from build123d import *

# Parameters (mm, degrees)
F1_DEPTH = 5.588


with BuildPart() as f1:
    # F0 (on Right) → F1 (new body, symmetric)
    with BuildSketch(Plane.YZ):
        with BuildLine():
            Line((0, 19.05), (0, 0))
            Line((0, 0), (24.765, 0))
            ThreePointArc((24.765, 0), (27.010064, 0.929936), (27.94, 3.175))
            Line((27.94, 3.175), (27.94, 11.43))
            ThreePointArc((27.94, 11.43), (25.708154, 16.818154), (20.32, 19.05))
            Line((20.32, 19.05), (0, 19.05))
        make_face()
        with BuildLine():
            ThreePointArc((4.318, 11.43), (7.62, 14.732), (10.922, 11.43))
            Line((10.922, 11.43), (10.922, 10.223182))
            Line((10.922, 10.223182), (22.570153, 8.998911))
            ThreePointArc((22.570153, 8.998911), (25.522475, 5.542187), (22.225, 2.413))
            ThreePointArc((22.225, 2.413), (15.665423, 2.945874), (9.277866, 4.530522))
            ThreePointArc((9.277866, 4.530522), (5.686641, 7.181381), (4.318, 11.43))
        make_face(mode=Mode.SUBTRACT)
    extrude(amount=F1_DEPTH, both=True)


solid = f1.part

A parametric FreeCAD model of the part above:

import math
import FreeCAD as App
import Part
import Sketcher

V = App.Vector
Q = App.Units.Quantity

doc = App.newDocument("Part")
body = doc.addObject("PartDesign::Body", "Body")

sketch1 = body.newObject("Sketcher::SketchObject", "Sketch")
sketch1.AttachmentSupport = (doc.getObject("YZ_Plane"), [""])
sketch1.MapMode = "FlatFace"
sketch1.addGeometry([
    Part.LineSegment(V(0, 19.1, 0), V(0, 0, 0)),
    Part.LineSegment(V(0, 0, 0), V(24.8, 0, 0)),
    Part.ArcOfCircle(Part.Circle(V(24.8, 3.2, 0), V(0, 0, 1), 3.2), math.radians(-90), math.radians(0)),
    Part.LineSegment(V(27.9, 3.2, 0), V(27.9, 11.4, 0)),
    Part.ArcOfCircle(Part.Circle(V(20.3, 11.4, 0), V(0, 0, 1), 7.6), math.radians(0), math.radians(90)),
    Part.LineSegment(V(20.3, 19.1, 0), V(0, 19.1, 0)),
    Part.ArcOfCircle(Part.Circle(V(11.6, 11.4, 0), V(0, 0, 1), 7.3), math.radians(180), math.radians(251)),
    Part.ArcOfCircle(Part.Circle(V(7.6, 11.4, 0), V(0, 0, 1), 3.3), math.radians(0), math.radians(180)),
    Part.LineSegment(V(10.9, 11.4, 0), V(10.9, 10.2, 0)),
    Part.LineSegment(V(10.9, 10.2, 0), V(22.6, 9, 0)),
    Part.ArcOfCircle(Part.Circle(V(22.2, 5.7, 0), V(0, 0, 1), 3.3), math.radians(-90), math.radians(84)),
    Part.ArcOfCircle(Part.Circle(V(22.2, 43.1, 0), V(0, 0, 1), 40.6), math.radians(-108.58), math.radians(-90)),
], False)
sketch1.addConstraint([
    Sketcher.Constraint("Coincident", 0, 2, 1, 1),
    Sketcher.Constraint("Tangent", 1, 2, 2, 1),
    Sketcher.Constraint("Tangent", 2, 2, 3, 1),
    Sketcher.Constraint("Tangent", 3, 2, 4, 1),
    Sketcher.Constraint("Tangent", 4, 2, 5, 1),
    Sketcher.Constraint("Coincident", 5, 2, 0, 1),
    Sketcher.Constraint("Tangent", 6, 1, 7, 2),
    Sketcher.Constraint("Tangent", 7, 1, 8, 1),
    Sketcher.Constraint("Coincident", 8, 2, 9, 1),
    Sketcher.Constraint("Tangent", 9, 2, 10, 2),
    Sketcher.Constraint("Tangent", 10, 1, 11, 2),
    Sketcher.Constraint("Tangent", 11, 1, 6, 2),
    Sketcher.Constraint("Vertical", 0),
    Sketcher.Constraint("Horizontal", 1),
    Sketcher.Constraint("Vertical", 3),
    Sketcher.Constraint("Horizontal", 5),
    Sketcher.Constraint("Vertical", 8),
    Sketcher.Constraint("Coincident", 0, 2, -1, 1),
    Sketcher.Constraint("Equal", 7, 10),
    Sketcher.Constraint("Horizontal", 4, 3, 6, 3),
    Sketcher.Constraint("Horizontal", 6, 3, 7, 3),
    Sketcher.Constraint("Vertical", 10, 3, 11, 3),
    Sketcher.Constraint("Radius", 4, Q("0.3 in")),
    Sketcher.Constraint("Radius", 7, Q("0.13 in")),
    Sketcher.Constraint("DistanceX", 5, 2, 5, 1, Q("0.8 in")),
    Sketcher.Constraint("Angle", 9, Q("-6.000004 deg")),
    Sketcher.Constraint("Radius", 2, Q("0.125 in")),
    Sketcher.Constraint("DistanceY", 0, 2, 0, 1, Q("0.75 in")),
    Sketcher.Constraint("DistanceX", -1, 1, 7, 3, Q("0.3 in")),
    Sketcher.Constraint("DistanceX", 10, 3, 2, 3, Q("0.1 in")),
    Sketcher.Constraint("DistanceY", 2, 3, 10, 3, Q("0.1 in")),
    Sketcher.Constraint("Radius", 6, 7.278732),
])
pad1 = body.newObject("PartDesign::Pad", "Pad")
pad1.Profile = sketch1
pad1.Length = Q("0.44 in")
pad1.Midplane = True

doc.recompute()
